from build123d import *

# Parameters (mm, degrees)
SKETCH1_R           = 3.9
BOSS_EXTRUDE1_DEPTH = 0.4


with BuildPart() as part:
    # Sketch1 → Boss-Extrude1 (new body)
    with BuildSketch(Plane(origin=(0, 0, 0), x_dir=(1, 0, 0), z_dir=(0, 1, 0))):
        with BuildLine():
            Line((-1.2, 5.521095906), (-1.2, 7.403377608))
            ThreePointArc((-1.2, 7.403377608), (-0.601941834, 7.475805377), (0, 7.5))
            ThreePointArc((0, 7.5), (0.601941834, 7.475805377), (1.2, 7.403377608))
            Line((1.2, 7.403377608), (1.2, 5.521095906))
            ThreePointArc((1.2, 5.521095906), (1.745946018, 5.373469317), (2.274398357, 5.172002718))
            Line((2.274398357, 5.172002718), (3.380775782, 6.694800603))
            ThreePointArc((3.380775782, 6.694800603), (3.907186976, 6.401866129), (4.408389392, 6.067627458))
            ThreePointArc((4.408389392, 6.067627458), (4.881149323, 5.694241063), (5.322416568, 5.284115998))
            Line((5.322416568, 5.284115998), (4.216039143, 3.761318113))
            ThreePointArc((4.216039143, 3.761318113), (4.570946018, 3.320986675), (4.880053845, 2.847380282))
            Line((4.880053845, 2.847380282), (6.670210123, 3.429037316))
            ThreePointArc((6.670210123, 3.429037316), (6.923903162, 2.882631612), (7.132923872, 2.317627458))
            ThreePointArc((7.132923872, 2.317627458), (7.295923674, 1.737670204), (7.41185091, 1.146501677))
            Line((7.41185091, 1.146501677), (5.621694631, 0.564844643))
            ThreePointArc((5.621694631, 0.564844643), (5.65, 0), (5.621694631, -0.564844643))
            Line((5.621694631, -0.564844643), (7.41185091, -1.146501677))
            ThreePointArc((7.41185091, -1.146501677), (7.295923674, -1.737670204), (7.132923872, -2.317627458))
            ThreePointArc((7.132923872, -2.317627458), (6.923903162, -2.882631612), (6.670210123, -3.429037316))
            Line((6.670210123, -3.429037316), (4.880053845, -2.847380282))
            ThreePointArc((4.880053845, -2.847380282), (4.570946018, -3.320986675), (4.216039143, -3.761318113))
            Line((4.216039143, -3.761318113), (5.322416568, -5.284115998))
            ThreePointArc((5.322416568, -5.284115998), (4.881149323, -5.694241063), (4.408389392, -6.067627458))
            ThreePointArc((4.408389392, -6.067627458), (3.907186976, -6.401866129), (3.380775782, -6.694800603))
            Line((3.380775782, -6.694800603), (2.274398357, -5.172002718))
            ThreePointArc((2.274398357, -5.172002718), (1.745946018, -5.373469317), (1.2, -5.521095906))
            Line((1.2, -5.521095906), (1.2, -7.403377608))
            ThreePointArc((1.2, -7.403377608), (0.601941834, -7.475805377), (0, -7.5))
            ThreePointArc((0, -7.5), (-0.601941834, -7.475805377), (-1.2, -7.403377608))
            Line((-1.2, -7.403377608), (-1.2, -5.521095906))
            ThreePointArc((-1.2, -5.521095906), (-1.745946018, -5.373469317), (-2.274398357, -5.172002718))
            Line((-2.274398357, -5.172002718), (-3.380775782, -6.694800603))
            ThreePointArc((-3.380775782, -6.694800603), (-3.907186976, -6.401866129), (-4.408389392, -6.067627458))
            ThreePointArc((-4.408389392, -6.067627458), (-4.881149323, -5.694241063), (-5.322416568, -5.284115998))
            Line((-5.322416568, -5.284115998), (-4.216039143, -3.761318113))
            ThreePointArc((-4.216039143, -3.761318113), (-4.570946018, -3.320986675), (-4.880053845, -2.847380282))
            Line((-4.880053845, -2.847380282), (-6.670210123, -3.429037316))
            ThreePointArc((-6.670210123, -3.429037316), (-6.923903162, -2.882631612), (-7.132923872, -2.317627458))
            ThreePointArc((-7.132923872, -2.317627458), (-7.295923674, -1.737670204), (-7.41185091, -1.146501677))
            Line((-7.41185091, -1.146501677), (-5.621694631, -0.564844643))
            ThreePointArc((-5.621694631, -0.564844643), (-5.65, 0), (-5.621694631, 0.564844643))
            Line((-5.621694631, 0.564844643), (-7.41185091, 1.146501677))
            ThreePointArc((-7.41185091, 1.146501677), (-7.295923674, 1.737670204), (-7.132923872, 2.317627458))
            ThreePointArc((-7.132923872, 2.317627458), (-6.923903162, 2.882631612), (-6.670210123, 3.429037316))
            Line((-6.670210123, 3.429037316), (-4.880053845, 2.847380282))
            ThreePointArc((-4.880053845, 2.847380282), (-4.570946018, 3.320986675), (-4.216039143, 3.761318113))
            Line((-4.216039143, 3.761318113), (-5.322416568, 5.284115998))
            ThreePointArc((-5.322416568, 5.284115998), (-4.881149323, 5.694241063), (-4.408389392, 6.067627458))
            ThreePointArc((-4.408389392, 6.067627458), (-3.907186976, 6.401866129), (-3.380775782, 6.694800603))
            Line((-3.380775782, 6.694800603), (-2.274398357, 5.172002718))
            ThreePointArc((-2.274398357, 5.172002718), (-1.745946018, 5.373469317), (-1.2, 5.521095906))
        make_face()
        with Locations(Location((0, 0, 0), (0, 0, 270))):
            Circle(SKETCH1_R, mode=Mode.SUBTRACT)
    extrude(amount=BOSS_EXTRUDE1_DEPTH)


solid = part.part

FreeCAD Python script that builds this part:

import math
import FreeCAD as App
import Part
import Sketcher
from FreeCAD import Vector
Q = App.Units.Quantity

doc = App.newDocument("Part")
body = doc.addObject("PartDesign::Body", "Body")

sketch1 = body.newObject("Sketcher::SketchObject", "Sketch")
sketch1.AttachmentSupport = (doc.getObject("XZ_Plane"), [""])
sketch1.MapMode = "FlatFace"
sketch1.addGeometry(Part.LineSegment(Vector(-1.2, -7.4, 0), Vector(-1.2, -5.5, 0)), False)
sketch1.addGeometry(Part.ArcOfCircle(Part.Circle(Vector(0, 0, 0), Vector(0, 0, 1), 5.7), math.radians(-113.74), math.radians(-102.26)), False)
sketch1.addGeometry(Part.LineSegment(Vector(-2.3, -5.2, 0), Vector(-3.4, -6.7, 0)), False)
sketch1.addGeometry(Part.ArcOfCircle(Part.Circle(Vector(0, 0, 0), Vector(0, 0, 1), 7.5), math.radians(-126), math.radians(-116.79)), False)
sketch1.addGeometry(Part.ArcOfCircle(Part.Circle(Vector(0, 0, 0), Vector(0, 0, 1), 7.5), math.radians(-135.21), math.radians(-126)), False)
sketch1.addGeometry(Part.LineSegment(Vector(-5.3, -5.3, 0), Vector(-4.2, -3.8, 0)), False)
sketch1.addGeometry(Part.ArcOfCircle(Part.Circle(Vector(0, 0, 0), Vector(0, 0, 1), 5.7), math.radians(-149.74), math.radians(-138.26)), False)
sketch1.addGeometry(Part.LineSegment(Vector(-4.9, -2.8, 0), Vector(-6.7, -3.4, 0)), False)
sketch1.addGeometry(Part.ArcOfCircle(Part.Circle(Vector(0, 0, 0), Vector(0, 0, 1), 7.5), math.radians(-162), math.radians(-152.79)), False)
sketch1.addGeometry(Part.ArcOfCircle(Part.Circle(Vector(0, 0, 0), Vector(0, 0, 1), 7.5), math.radians(-171.21), math.radians(-162)), False)
sketch1.addGeometry(Part.LineSegment(Vector(-7.4, -1.1, 0), Vector(-5.6, -0.6, 0)), False)
sketch1.addGeometry(Part.ArcOfCircle(Part.Circle(Vector(0, 0, 0), Vector(0, 0, 1), 5.6), math.radians(174.26), math.radians(185.74)), False)
sketch1.addGeometry(Part.LineSegment(Vector(-5.6, 0.6, 0), Vector(-7.4, 1.1, 0)), False)
sketch1.addGeometry(Part.ArcOfCircle(Part.Circle(Vector(0, 0, 0), Vector(0, 0, 1), 7.5), math.radians(162), math.radians(171.21)), False)
sketch1.addGeometry(Part.ArcOfCircle(Part.Circle(Vector(0, 0, 0), Vector(0, 0, 1), 7.5), math.radians(152.79), math.radians(162)), False)
sketch1.addGeometry(Part.LineSegment(Vector(-6.7, 3.4, 0), Vector(-4.9, 2.8, 0)), False)
sketch1.addGeometry(Part.ArcOfCircle(Part.Circle(Vector(0, 0, 0), Vector(0, 0, 1), 5.7), math.radians(138.26), math.radians(149.74)), False)
sketch1.addGeometry(Part.LineSegment(Vector(-4.2, 3.8, 0), Vector(-5.3, 5.3, 0)), False)
sketch1.addGeometry(Part.ArcOfCircle(Part.Circle(Vector(0, 0, 0), Vector(0, 0, 1), 7.5), math.radians(126), math.radians(135.21)), False)
sketch1.addGeometry(Part.ArcOfCircle(Part.Circle(Vector(0, 0, 0), Vector(0, 0, 1), 7.5), math.radians(116.79), math.radians(126)), False)
sketch1.addGeometry(Part.LineSegment(Vector(-3.4, 6.7, 0), Vector(-2.3, 5.2, 0)), False)
sketch1.addGeometry(Part.ArcOfCircle(Part.Circle(Vector(0, 0, 0), Vector(0, 0, 1), 5.7), math.radians(102.26), math.radians(113.74)), False)
sketch1.addGeometry(Part.LineSegment(Vector(-1.2, 5.5, 0), Vector(-1.2, 7.4, 0)), False)
sketch1.addGeometry(Part.ArcOfCircle(Part.Circle(Vector(0, 0, 0), Vector(0, 0, 1), 7.5), math.radians(90), math.radians(99.21)), False)
sketch1.addGeometry(Part.ArcOfCircle(Part.Circle(Vector(0, 0, 0), Vector(0, 0, 1), 7.5), math.radians(80.79), math.radians(90)), False)
sketch1.addGeometry(Part.LineSegment(Vector(1.2, 7.4, 0), Vector(1.2, 5.5, 0)), False)
sketch1.addGeometry(Part.ArcOfCircle(Part.Circle(Vector(0, 0, 0), Vector(0, 0, 1), 5.7), math.radians(66.26), math.radians(77.74)), False)
sketch1.addGeometry(Part.LineSegment(Vector(2.3, 5.2, 0), Vector(3.4, 6.7, 0)), False)
sketch1.addGeometry(Part.ArcOfCircle(Part.Circle(Vector(0, 0, 0), Vector(0, 0, 1), 7.5), math.radians(54), math.radians(63.21)), False)
sketch1.addGeometry(Part.ArcOfCircle(Part.Circle(Vector(0, 0, 0), Vector(0, 0, 1), 7.5), math.radians(44.79), math.radians(54)), False)
sketch1.addGeometry(Part.LineSegment(Vector(5.3, 5.3, 0), Vector(4.2, 3.8, 0)), False)
sketch1.addGeometry(Part.ArcOfCircle(Part.Circle(Vector(0, 0, 0), Vector(0, 0, 1), 5.7), math.radians(30.26), math.radians(41.74)), False)
sketch1.addGeometry(Part.LineSegment(Vector(4.9, 2.8, 0), Vector(6.7, 3.4, 0)), False)
sketch1.addGeometry(Part.ArcOfCircle(Part.Circle(Vector(0, 0, 0), Vector(0, 0, 1), 7.5), math.radians(18), math.radians(27.21)), False)
sketch1.addGeometry(Part.ArcOfCircle(Part.Circle(Vector(0, 0, 0), Vector(0, 0, 1), 7.5), math.radians(8.79), math.radians(18)), False)
sketch1.addGeometry(Part.LineSegment(Vector(7.4, 1.1, 0), Vector(5.6, 0.6, 0)), False)
sketch1.addGeometry(Part.ArcOfCircle(Part.Circle(Vector(0, 0, 0), Vector(0, 0, 1), 5.6), math.radians(-5.74), math.radians(5.74)), False)
sketch1.addGeometry(Part.LineSegment(Vector(5.6, -0.6, 0), Vector(7.4, -1.1, 0)), False)
sketch1.addGeometry(Part.ArcOfCircle(Part.Circle(Vector(0, 0, 0), Vector(0, 0, 1), 7.5), math.radians(-18), math.radians(-8.79)), False)
sketch1.addGeometry(Part.ArcOfCircle(Part.Circle(Vector(0, 0, 0), Vector(0, 0, 1), 7.5), math.radians(-27.21), math.radians(-18)), False)
sketch1.addGeometry(Part.LineSegment(Vector(6.7, -3.4, 0), Vector(4.9, -2.8, 0)), False)
sketch1.addGeometry(Part.ArcOfCircle(Part.Circle(Vector(0, 0, 0), Vector(0, 0, 1), 5.7), math.radians(-41.74), math.radians(-30.26)), False)
sketch1.addGeometry(Part.LineSegment(Vector(4.2, -3.8, 0), Vector(5.3, -5.3, 0)), False)
sketch1.addGeometry(Part.ArcOfCircle(Part.Circle(Vector(0, 0, 0), Vector(0, 0, 1), 7.5), math.radians(-54), math.radians(-44.79)), False)
sketch1.addGeometry(Part.ArcOfCircle(Part.Circle(Vector(0, 0, 0), Vector(0, 0, 1), 7.5), math.radians(-63.21), math.radians(-54)), False)
sketch1.addGeometry(Part.LineSegment(Vector(3.4, -6.7, 0), Vector(2.3, -5.2, 0)), False)
sketch1.addGeometry(Part.ArcOfCircle(Part.Circle(Vector(0, 0, 0), Vector(0, 0, 1), 5.7), math.radians(-77.74), math.radians(-66.26)), False)
sketch1.addGeometry(Part.LineSegment(Vector(1.2, -5.5, 0), Vector(1.2, -7.4, 0)), False)
sketch1.addGeometry(Part.ArcOfCircle(Part.Circle(Vector(0, 0, 0), Vector(0, 0, 1), 7.5), math.radians(-90), math.radians(-80.79)), False)
sketch1.addGeometry(Part.ArcOfCircle(Part.Circle(Vector(0, 0, 0), Vector(0, 0, 1), 7.5), math.radians(-99.21), math.radians(-90)), False)
sketch1.addGeometry(Part.Circle(Vector(0, 0, 0), Vector(0, 0, 1), 3.9), False)
sketch1.addConstraint(Sketcher.Constraint("Coincident", 0, 2, 1, 2))
sketch1.addConstraint(Sketcher.Constraint("Coincident", 1, 1, 2, 1))
sketch1.addConstraint(Sketcher.Constraint("Coincident", 2, 2, 3, 2))
sketch1.addConstraint(Sketcher.Constraint("Tangent", 3, 1, 4, 2))
sketch1.addConstraint(Sketcher.Constraint("Coincident", 4, 1, 5, 1))
sketch1.addConstraint(Sketcher.Constraint("Coincident", 5, 2, 6, 2))
sketch1.addConstraint(Sketcher.Constraint("Coincident", 6, 1, 7, 1))
sketch1.addConstraint(Sketcher.Constraint("Coincident", 7, 2, 8, 2))
sketch1.addConstraint(Sketcher.Constraint("Tangent", 8, 1, 9, 2))
sketch1.addConstraint(Sketcher.Constraint("Coincident", 9, 1, 10, 1))
sketch1.addConstraint(Sketcher.Constraint("Coincident", 10, 2, 11, 2))
sketch1.addConstraint(Sketcher.Constraint("Coincident", 11, 1, 12, 1))
sketch1.addConstraint(Sketcher.Constraint("Coincident", 12, 2, 13, 2))
sketch1.addConstraint(Sketcher.Constraint("Tangent", 13, 1, 14, 2))
sketch1.addConstraint(Sketcher.Constraint("Coincident", 14, 1, 15, 1))
sketch1.addConstraint(Sketcher.Constraint("Coincident", 15, 2, 16, 2))
sketch1.addConstraint(Sketcher.Constraint("Coincident", 16, 1, 17, 1))
sketch1.addConstraint(Sketcher.Constraint("Coincident", 17, 2, 18, 2))
sketch1.addConstraint(Sketcher.Constraint("Tangent", 18, 1, 19, 2))
sketch1.addConstraint(Sketcher.Constraint("Coincident", 19, 1, 20, 1))
sketch1.addConstraint(Sketcher.Constraint("Coincident", 20, 2, 21, 2))
sketch1.addConstraint(Sketcher.Constraint("Coincident", 21, 1, 22, 1))
sketch1.addConstraint(Sketcher.Constraint("Coincident", 22, 2, 23, 2))
sketch1.addConstraint(Sketcher.Constraint("Tangent", 23, 1, 24, 2))
sketch1.addConstraint(Sketcher.Constraint("Coincident", 24, 1, 25, 1))
sketch1.addConstraint(Sketcher.Constraint("Coincident", 25, 2, 26, 2))
sketch1.addConstraint(Sketcher.Constraint("Coincident", 26, 1, 27, 1))
sketch1.addConstraint(Sketcher.Constraint("Coincident", 27, 2, 28, 2))
sketch1.addConstraint(Sketcher.Constraint("Tangent", 28, 1, 29, 2))
sketch1.addConstraint(Sketcher.Constraint("Coincident", 29, 1, 30, 1))
sketch1.addConstraint(Sketcher.Constraint("Coincident", 30, 2, 31, 2))
sketch1.addConstraint(Sketcher.Constraint("Coincident", 31, 1, 32, 1))
sketch1.addConstraint(Sketcher.Constraint("Coincident", 32, 2, 33, 2))
sketch1.addConstraint(Sketcher.Constraint("Tangent", 33, 1, 34, 2))
sketch1.addConstraint(Sketcher.Constraint("Coincident", 34, 1, 35, 1))
sketch1.addConstraint(Sketcher.Constraint("Coincident", 35, 2, 36, 2))
sketch1.addConstraint(Sketcher.Constraint("Coincident", 36, 1, 37, 1))
sketch1.addConstraint(Sketcher.Constraint("Coincident", 37, 2, 38, 2))
sketch1.addConstraint(Sketcher.Constraint("Tangent", 38, 1, 39, 2))
sketch1.addConstraint(Sketcher.Constraint("Coincident", 39, 1, 40, 1))
sketch1.addConstraint(Sketcher.Constraint("Coincident", 40, 2, 41, 2))
sketch1.addConstraint(Sketcher.Constraint("Coincident", 41, 1, 42, 1))
sketch1.addConstraint(Sketcher.Constraint("Coincident", 42, 2, 43, 2))
sketch1.addConstraint(Sketcher.Constraint("Tangent", 43, 1, 44, 2))
sketch1.addConstraint(Sketcher.Constraint("Coincident", 44, 1, 45, 1))
sketch1.addConstraint(Sketcher.Constraint("Coincident", 45, 2, 46, 2))
sketch1.addConstraint(Sketcher.Constraint("Coincident", 46, 1, 47, 1))
sketch1.addConstraint(Sketcher.Constraint("Coincident", 47, 2, 48, 2))
sketch1.addConstraint(Sketcher.Constraint("Tangent", 48, 1, 49, 2))
sketch1.addConstraint(Sketcher.Constraint("Coincident", 49, 1, 0, 1))
sketch1.addConstraint(Sketcher.Constraint("Vertical", 0))
sketch1.addConstraint(Sketcher.Constraint("Vertical", 22))
sketch1.addConstraint(Sketcher.Constraint("Vertical", 25))
sketch1.addConstraint(Sketcher.Constraint("Vertical", 47))
sketch1.addConstraint(Sketcher.Constraint("Coincident", 1, 3, -1, 1))
sketch1.addConstraint(Sketcher.Constraint("Coincident", 3, 3, -1, 1))
sketch1.addConstraint(Sketcher.Constraint("Coincident", 6, 3, -1, 1))
sketch1.addConstraint(Sketcher.Constraint("Coincident", 8, 3, -1, 1))
sketch1.addConstraint(Sketcher.Constraint("Coincident", 11, 3, -1, 1))
sketch1.addConstraint(Sketcher.Constraint("Coincident", 13, 3, -1, 1))
sketch1.addConstraint(Sketcher.Constraint("Coincident", 16, 3, -1, 1))
sketch1.addConstraint(Sketcher.Constraint("Coincident", 18, 3, -1, 1))
sketch1.addConstraint(Sketcher.Constraint("Coincident", 21, 3, -1, 1))
sketch1.addConstraint(Sketcher.Constraint("Coincident", 23, 3, -1, 1))
sketch1.addConstraint(Sketcher.Constraint("Coincident", 26, 3, -1, 1))
sketch1.addConstraint(Sketcher.Constraint("Coincident", 28, 3, -1, 1))
sketch1.addConstraint(Sketcher.Constraint("Coincident", 31, 3, -1, 1))
sketch1.addConstraint(Sketcher.Constraint("Coincident", 33, 3, -1, 1))
sketch1.addConstraint(Sketcher.Constraint("Coincident", 36, 3, -1, 1))
sketch1.addConstraint(Sketcher.Constraint("Coincident", 38, 3, -1, 1))
sketch1.addConstraint(Sketcher.Constraint("Coincident", 41, 3, -1, 1))
sketch1.addConstraint(Sketcher.Constraint("Coincident", 43, 3, -1, 1))
sketch1.addConstraint(Sketcher.Constraint("Coincident", 46, 3, -1, 1))
sketch1.addConstraint(Sketcher.Constraint("Coincident", 48, 3, -1, 1))
sketch1.addConstraint(Sketcher.Constraint("Coincident", 50, 3, -1, 1))
sketch1.addConstraint(Sketcher.Constraint("Equal", 3, 4))
sketch1.addConstraint(Sketcher.Constraint("Equal", 1, 6))
sketch1.addConstraint(Sketcher.Constraint("Equal", 4, 8))
sketch1.addConstraint(Sketcher.Constraint("Equal", 8, 9))
sketch1.addConstraint(Sketcher.Constraint("Equal", 6, 11))
sketch1.addConstraint(Sketcher.Constraint("Equal", 9, 13))
sketch1.addConstraint(Sketcher.Constraint("Equal", 13, 14))
sketch1.addConstraint(Sketcher.Constraint("Equal", 11, 16))
sketch1.addConstraint(Sketcher.Constraint("Equal", 14, 18))
sketch1.addConstraint(Sketcher.Constraint("Equal", 18, 19))
sketch1.addConstraint(Sketcher.Constraint("Equal", 16, 21))
sketch1.addConstraint(Sketcher.Constraint("Equal", 19, 23))
sketch1.addConstraint(Sketcher.Constraint("Equal", 23, 24))
sketch1.addConstraint(Sketcher.Constraint("Equal", 21, 26))
sketch1.addConstraint(Sketcher.Constraint("Equal", 24, 28))
sketch1.addConstraint(Sketcher.Constraint("Equal", 28, 29))
sketch1.addConstraint(Sketcher.Constraint("Equal", 26, 31))
sketch1.addConstraint(Sketcher.Constraint("Equal", 29, 33))
sketch1.addConstraint(Sketcher.Constraint("Equal", 33, 34))
sketch1.addConstraint(Sketcher.Constraint("Equal", 31, 36))
sketch1.addConstraint(Sketcher.Constraint("Equal", 34, 38))
sketch1.addConstraint(Sketcher.Constraint("Equal", 38, 39))
sketch1.addConstraint(Sketcher.Constraint("Equal", 36, 41))
sketch1.addConstraint(Sketcher.Constraint("Equal", 39, 43))
sketch1.addConstraint(Sketcher.Constraint("Equal", 43, 44))
sketch1.addConstraint(Sketcher.Constraint("Equal", 41, 46))
sketch1.addConstraint(Sketcher.Constraint("Equal", 44, 48))
sketch1.addConstraint(Sketcher.Constraint("Equal", 48, 49))
sketch1.addConstraint(Sketcher.Constraint("PointOnObject", 23, 1, -2))
sketch1.addConstraint(Sketcher.Constraint("PointOnObject", 48, 1, -2))
sketch1.addConstraint(Sketcher.Constraint("Parallel", 2, 5))
sketch1.addConstraint(Sketcher.Constraint("Parallel", 7, 10))
sketch1.addConstraint(Sketcher.Constraint("Parallel", 12, 15))
sketch1.addConstraint(Sketcher.Constraint("Parallel", 17, 20))
sketch1.addConstraint(Sketcher.Constraint("Parallel", 5, 27))
sketch1.addConstraint(Sketcher.Constraint("Parallel", 27, 30))
sketch1.addConstraint(Sketcher.Constraint("Parallel", 10, 32))
sketch1.addConstraint(Sketcher.Constraint("Parallel", 32, 35))
sketch1.addConstraint(Sketcher.Constraint("Parallel", 15, 37))
sketch1.addConstraint(Sketcher.Constraint("Parallel", 37, 40))
sketch1.addConstraint(Sketcher.Constraint("Parallel", 20, 42))
sketch1.addConstraint(Sketcher.Constraint("Parallel", 42, 45))
sketch1.addConstraint(Sketcher.Constraint("Horizontal", 22, 2, 24, 1))
sketch1.addConstraint(Sketcher.Constraint("Horizontal", 20, 2, 26, 1))
sketch1.addConstraint(Sketcher.Constraint("Horizontal", 19, 1, 27, 2))
sketch1.addConstraint(Sketcher.Constraint("Horizontal", 18, 1, 28, 1))
sketch1.addConstraint(Sketcher.Constraint("Horizontal", 17, 2, 29, 1))
sketch1.addConstraint(Sketcher.Constraint("Horizontal", 15, 2, 31, 1))
sketch1.addConstraint(Sketcher.Constraint("Horizontal", 14, 1, 32, 2))
sketch1.addConstraint(Sketcher.Constraint("Horizontal", 13, 1, 33, 1))
sketch1.addConstraint(Sketcher.Constraint("Horizontal", 12, 2, 34, 1))
sketch1.addConstraint(Sketcher.Constraint("Horizontal", 10, 2, 36, 1))
sketch1.addConstraint(Sketcher.Constraint("Horizontal", 8, 1, 38, 1))
sketch1.addConstraint(Sketcher.Constraint("Horizontal", 7, 2, 39, 1))
sketch1.addConstraint(Sketcher.Constraint("Horizontal", 5, 2, 41, 1))
sketch1.addConstraint(Sketcher.Constraint("Horizontal", 3, 1, 43, 1))
sketch1.addConstraint(Sketcher.Constraint("Horizontal", 2, 2, 44, 1))
sketch1.addConstraint(Sketcher.Constraint("Horizontal", 0, 2, 46, 1))
sketch1.addConstraint(Sketcher.Constraint("Vertical", 10, 2, 11, 1))
sketch1.addConstraint(Sketcher.Constraint("Vertical", 8, 1, 13, 1))
sketch1.addConstraint(Sketcher.Constraint("Vertical", 7, 2, 14, 1))
sketch1.addConstraint(Sketcher.Constraint("Vertical", 5, 2, 16, 1))
sketch1.addConstraint(Sketcher.Constraint("Vertical", 3, 1, 18, 1))
sketch1.addConstraint(Sketcher.Constraint("Vertical", 2, 2, 19, 1))
sketch1.addConstraint(Sketcher.Constraint("Vertical", 0, 2, 21, 1))
sketch1.addConstraint(Sketcher.Constraint("Equal", 2, 5))
sketch1.addConstraint(Sketcher.Constraint("Equal", 5, 7))
sketch1.addConstraint(Sketcher.Constraint("Equal", 7, 10))
sketch1.addConstraint(Sketcher.Constraint("Diameter", 50, 7.8))
sketch1.addConstraint(Sketcher.Constraint("Radius", 3, 7.5))
sketch1.addConstraint(Sketcher.Constraint("Angle", 2, Q("-126 deg")))
sketch1.addConstraint(Sketcher.Constraint("Angle", 7, Q("-162 deg")))
sketch1.addConstraint(Sketcher.Constraint("Radius", 1, 5.65))
sketch1.addConstraint(Sketcher.Constraint("DistanceX", 0, 2, -1, 1, 1.2))
sketch1.addConstraint(Sketcher.Constraint("DistanceX", 1, 1, -1, 1, 2.274398))
sketch1.addConstraint(Sketcher.Constraint("DistanceX", 3, 1, -1, 1, 4.408389))
sketch1.addConstraint(Sketcher.Constraint("DistanceX", 8, 1, -1, 1, 7.132924))
pad1 = body.newObject("PartDesign::Pad", "Pad")
pad1.Profile = sketch1
pad1.Length = 0.4
pad1.Reversed = True

doc.recompute()
